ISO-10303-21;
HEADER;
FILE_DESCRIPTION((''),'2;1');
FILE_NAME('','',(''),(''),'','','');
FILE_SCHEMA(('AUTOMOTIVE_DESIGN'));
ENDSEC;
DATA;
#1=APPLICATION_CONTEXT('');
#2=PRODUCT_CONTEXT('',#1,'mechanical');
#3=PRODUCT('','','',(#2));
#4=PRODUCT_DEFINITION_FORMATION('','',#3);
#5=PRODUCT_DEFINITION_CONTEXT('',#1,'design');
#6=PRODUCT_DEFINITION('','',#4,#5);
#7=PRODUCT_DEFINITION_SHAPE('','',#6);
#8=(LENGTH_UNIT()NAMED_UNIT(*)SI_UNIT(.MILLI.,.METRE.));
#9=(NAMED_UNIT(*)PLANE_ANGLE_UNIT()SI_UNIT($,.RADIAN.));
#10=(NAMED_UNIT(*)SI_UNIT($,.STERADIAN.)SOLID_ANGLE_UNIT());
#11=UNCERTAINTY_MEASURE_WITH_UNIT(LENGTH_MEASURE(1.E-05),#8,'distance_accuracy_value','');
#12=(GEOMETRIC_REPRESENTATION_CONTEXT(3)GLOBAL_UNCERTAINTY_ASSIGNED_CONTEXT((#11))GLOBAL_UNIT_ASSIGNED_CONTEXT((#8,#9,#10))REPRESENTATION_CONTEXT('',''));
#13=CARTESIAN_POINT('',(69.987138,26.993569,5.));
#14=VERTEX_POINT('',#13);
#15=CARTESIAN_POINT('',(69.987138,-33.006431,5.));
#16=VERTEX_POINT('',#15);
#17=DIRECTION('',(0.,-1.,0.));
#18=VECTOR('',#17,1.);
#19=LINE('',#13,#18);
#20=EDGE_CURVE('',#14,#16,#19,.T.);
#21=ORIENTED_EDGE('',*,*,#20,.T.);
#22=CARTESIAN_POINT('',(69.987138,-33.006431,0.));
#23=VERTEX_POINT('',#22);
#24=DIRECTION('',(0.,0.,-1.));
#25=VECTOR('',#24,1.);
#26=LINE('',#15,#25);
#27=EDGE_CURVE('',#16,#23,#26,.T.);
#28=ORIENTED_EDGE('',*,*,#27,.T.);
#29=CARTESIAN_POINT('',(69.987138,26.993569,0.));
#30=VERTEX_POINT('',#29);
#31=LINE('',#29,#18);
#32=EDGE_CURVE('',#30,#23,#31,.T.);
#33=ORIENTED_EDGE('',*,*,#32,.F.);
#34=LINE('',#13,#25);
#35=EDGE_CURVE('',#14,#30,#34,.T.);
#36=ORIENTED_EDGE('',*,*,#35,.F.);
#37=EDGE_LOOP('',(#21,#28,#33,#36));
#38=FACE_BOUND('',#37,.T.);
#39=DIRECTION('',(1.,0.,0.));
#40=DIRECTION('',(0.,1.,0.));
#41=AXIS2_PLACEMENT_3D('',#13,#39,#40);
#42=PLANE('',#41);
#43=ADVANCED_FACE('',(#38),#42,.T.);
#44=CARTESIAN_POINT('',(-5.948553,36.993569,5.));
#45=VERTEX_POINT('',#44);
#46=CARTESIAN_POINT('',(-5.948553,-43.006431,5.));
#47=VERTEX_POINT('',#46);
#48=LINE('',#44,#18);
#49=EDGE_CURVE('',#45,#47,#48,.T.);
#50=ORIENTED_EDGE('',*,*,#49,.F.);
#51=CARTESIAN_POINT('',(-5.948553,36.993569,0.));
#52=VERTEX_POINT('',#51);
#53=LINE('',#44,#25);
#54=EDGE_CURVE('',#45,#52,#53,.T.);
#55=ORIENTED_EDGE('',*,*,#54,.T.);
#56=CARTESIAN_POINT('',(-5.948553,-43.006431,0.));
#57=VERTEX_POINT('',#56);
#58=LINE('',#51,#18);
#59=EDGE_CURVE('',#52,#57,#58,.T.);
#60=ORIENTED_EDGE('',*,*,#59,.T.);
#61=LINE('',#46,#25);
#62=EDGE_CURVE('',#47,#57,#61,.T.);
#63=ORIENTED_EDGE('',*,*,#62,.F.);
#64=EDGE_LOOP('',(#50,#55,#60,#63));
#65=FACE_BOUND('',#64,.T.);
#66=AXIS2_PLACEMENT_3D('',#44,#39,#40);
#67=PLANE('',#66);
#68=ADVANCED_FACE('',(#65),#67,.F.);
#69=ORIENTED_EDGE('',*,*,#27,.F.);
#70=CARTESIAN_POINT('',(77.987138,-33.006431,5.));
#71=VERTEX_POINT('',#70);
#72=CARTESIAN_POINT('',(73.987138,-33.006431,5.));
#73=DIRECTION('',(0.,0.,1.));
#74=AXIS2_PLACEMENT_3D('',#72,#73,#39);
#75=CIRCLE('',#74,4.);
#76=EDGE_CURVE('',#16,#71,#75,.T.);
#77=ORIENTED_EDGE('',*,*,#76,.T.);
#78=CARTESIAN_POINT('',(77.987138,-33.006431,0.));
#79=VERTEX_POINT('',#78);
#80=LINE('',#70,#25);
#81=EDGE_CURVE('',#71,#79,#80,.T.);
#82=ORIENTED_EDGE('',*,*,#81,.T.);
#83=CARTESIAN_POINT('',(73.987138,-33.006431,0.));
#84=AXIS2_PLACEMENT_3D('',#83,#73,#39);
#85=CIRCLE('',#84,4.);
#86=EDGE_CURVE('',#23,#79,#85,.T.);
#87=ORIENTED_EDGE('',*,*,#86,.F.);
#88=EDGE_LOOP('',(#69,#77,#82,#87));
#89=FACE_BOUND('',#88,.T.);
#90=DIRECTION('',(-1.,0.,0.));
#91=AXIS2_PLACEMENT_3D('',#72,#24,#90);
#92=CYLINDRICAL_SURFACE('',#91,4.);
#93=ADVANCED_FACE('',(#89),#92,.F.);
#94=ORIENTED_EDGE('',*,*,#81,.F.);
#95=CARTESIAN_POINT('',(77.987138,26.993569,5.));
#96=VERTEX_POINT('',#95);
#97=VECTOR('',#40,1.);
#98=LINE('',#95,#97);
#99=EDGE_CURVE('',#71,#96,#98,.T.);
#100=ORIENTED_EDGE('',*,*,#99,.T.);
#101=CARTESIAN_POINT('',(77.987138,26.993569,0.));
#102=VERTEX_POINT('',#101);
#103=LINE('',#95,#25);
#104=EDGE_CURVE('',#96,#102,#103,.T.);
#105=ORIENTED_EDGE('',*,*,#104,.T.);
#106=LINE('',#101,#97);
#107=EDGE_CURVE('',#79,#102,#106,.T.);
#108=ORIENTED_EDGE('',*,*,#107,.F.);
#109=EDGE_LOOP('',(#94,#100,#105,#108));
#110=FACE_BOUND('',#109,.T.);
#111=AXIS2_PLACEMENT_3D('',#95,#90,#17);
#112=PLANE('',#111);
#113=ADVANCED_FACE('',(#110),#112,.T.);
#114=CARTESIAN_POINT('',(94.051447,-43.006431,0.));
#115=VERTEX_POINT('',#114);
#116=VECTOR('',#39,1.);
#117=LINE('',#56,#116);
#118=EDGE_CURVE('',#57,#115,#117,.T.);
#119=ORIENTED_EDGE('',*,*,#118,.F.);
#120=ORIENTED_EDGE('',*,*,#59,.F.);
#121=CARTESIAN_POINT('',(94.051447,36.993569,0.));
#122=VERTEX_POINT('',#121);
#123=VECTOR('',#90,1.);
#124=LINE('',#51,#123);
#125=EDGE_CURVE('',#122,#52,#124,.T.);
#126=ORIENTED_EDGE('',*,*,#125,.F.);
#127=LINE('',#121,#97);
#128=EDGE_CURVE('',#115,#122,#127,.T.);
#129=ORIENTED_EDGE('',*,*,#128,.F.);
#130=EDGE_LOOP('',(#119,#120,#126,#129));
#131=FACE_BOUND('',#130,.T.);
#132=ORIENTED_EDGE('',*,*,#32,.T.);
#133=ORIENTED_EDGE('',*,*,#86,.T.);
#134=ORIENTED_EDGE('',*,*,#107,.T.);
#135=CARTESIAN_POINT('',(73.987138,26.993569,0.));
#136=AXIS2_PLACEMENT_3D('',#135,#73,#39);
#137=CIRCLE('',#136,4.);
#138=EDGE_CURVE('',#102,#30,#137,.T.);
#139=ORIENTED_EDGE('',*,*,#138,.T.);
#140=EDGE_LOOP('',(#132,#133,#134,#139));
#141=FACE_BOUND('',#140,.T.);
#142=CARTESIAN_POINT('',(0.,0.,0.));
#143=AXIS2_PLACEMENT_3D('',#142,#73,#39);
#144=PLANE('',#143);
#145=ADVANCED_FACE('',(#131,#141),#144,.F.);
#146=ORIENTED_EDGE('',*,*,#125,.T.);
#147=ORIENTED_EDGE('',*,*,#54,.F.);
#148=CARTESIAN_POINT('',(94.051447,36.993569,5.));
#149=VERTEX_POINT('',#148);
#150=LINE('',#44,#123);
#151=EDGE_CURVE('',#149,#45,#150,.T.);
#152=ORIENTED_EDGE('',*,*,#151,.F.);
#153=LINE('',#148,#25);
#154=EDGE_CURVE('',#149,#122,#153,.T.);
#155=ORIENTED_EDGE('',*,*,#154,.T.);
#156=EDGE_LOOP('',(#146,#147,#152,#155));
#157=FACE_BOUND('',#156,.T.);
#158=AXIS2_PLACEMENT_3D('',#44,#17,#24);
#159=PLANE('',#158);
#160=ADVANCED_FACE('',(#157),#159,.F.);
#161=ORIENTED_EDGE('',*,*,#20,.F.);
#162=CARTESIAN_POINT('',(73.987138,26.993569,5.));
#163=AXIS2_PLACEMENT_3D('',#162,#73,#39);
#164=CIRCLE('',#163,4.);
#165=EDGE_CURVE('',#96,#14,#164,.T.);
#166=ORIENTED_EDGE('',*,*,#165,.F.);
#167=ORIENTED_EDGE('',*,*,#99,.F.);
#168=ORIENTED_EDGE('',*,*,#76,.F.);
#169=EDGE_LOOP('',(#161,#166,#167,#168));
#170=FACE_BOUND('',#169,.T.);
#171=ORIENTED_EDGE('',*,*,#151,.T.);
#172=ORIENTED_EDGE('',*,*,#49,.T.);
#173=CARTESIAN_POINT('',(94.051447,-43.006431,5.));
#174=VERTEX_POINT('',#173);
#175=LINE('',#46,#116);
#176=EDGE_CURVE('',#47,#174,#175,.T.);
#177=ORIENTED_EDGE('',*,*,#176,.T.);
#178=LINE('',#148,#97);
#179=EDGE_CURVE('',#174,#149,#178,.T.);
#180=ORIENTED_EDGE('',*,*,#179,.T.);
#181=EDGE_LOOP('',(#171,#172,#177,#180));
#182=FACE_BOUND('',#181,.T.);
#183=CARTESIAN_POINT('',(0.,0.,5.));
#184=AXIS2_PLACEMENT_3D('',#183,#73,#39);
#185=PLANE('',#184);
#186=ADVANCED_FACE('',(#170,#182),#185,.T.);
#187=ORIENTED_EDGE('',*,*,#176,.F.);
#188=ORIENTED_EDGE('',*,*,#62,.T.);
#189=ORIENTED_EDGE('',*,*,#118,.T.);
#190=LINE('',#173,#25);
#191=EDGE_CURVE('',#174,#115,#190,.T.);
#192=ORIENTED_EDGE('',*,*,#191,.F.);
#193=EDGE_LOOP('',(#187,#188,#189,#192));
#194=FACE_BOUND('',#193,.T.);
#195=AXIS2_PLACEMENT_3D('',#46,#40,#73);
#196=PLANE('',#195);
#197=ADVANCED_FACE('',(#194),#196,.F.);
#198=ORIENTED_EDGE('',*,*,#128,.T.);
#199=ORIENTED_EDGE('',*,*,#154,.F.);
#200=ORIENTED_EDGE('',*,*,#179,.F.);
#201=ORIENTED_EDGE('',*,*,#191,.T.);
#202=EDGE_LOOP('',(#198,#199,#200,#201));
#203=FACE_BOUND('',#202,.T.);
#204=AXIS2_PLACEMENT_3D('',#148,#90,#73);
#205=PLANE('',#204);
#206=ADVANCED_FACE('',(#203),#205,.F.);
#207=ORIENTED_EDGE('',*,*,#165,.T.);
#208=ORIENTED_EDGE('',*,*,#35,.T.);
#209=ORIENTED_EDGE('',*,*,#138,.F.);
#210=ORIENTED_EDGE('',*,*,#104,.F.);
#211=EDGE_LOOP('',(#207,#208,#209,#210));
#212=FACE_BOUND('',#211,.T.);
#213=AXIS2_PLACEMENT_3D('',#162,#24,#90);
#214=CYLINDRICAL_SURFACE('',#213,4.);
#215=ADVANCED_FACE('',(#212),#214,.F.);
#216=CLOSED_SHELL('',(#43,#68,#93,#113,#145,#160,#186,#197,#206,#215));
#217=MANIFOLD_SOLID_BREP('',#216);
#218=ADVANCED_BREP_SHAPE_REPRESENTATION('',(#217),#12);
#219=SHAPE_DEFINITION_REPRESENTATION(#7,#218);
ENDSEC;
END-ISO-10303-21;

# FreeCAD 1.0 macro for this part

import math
import FreeCAD as App
import Part
import Sketcher
Q = App.Units.Quantity


def add_polygon(sketch, points):
    """Adds a closed chain of lines whose ends are joined by coincident constraints."""
    first, n = sketch.GeometryCount, len(points)
    for a, b in zip(points, points[1:] + points[:1]):
        sketch.addGeometry(Part.LineSegment(App.Vector(*a, 0), App.Vector(*b, 0)), False)
    for i in range(n):
        sketch.addConstraint(Sketcher.Constraint("Coincident", first + i, 2, first + (i + 1) % n, 1))

doc = App.newDocument("Part")
body = doc.addObject("PartDesign::Body", "Body")

sketch1 = body.newObject("Sketcher::SketchObject", "Sketch")
sketch1.AttachmentSupport = (doc.getObject("XY_Plane"), [""])
sketch1.MapMode = "FlatFace"
add_polygon(sketch1, [(-5.9, 37), (-5.9, -43), (94.1, -43), (94.1, 37)])
sketch1.addGeometry(Part.ArcOfCircle(Part.Circle(App.Vector(74, 27, 0), App.Vector(0, 0, 1), 4), math.radians(0), math.radians(180)), False)
sketch1.addGeometry(Part.LineSegment(App.Vector(78, 27, 0), App.Vector(78, -33, 0)), False)
sketch1.addGeometry(Part.ArcOfCircle(Part.Circle(App.Vector(74, -33, 0), App.Vector(0, 0, 1), 4), math.radians(180), math.radians(360)), False)
sketch1.addGeometry(Part.LineSegment(App.Vector(70, -33, 0), App.Vector(70, 27, 0)), False)
sketch1.addConstraint([
    Sketcher.Constraint("Tangent", 4, 1, 5, 1),
    Sketcher.Constraint("Tangent", 5, 2, 6, 2),
    Sketcher.Constraint("Tangent", 6, 1, 7, 1),
    Sketcher.Constraint("Tangent", 7, 2, 4, 2),
    Sketcher.Constraint("Vertical", 0),
    Sketcher.Constraint("Horizontal", 1),
    Sketcher.Constraint("Vertical", 2),
    Sketcher.Constraint("Horizontal", 3),
    Sketcher.Constraint("Vertical", 5),
    Sketcher.Constraint("Vertical", 7),
    Sketcher.Constraint("Radius", 4, Q("4 mm")),
    Sketcher.Constraint("DistanceX", 1, 1, 1, 2, Q("100 mm")),
    Sketcher.Constraint("DistanceY", 0, 2, 0, 1, Q("80 mm")),
    Sketcher.Constraint("DistanceY", 5, 2, 5, 1, Q("60 mm")),
    Sketcher.Constraint("DistanceY", 0, 2, 6, 3, Q("10 mm")),
    Sketcher.Constraint("DistanceX", -1, 1, 4, 3, Q("73.987138 mm")),
    Sketcher.Constraint("DistanceY", -1, 1, 4, 3, Q("26.993569 mm")),
    Sketcher.Constraint("DistanceX", 0, 2, 6, 3, Q("79.935691 mm")),
])
pad1 = body.newObject("PartDesign::Pad", "Pad")
pad1.Profile = sketch1
pad1.Length = 5

doc.recompute()
